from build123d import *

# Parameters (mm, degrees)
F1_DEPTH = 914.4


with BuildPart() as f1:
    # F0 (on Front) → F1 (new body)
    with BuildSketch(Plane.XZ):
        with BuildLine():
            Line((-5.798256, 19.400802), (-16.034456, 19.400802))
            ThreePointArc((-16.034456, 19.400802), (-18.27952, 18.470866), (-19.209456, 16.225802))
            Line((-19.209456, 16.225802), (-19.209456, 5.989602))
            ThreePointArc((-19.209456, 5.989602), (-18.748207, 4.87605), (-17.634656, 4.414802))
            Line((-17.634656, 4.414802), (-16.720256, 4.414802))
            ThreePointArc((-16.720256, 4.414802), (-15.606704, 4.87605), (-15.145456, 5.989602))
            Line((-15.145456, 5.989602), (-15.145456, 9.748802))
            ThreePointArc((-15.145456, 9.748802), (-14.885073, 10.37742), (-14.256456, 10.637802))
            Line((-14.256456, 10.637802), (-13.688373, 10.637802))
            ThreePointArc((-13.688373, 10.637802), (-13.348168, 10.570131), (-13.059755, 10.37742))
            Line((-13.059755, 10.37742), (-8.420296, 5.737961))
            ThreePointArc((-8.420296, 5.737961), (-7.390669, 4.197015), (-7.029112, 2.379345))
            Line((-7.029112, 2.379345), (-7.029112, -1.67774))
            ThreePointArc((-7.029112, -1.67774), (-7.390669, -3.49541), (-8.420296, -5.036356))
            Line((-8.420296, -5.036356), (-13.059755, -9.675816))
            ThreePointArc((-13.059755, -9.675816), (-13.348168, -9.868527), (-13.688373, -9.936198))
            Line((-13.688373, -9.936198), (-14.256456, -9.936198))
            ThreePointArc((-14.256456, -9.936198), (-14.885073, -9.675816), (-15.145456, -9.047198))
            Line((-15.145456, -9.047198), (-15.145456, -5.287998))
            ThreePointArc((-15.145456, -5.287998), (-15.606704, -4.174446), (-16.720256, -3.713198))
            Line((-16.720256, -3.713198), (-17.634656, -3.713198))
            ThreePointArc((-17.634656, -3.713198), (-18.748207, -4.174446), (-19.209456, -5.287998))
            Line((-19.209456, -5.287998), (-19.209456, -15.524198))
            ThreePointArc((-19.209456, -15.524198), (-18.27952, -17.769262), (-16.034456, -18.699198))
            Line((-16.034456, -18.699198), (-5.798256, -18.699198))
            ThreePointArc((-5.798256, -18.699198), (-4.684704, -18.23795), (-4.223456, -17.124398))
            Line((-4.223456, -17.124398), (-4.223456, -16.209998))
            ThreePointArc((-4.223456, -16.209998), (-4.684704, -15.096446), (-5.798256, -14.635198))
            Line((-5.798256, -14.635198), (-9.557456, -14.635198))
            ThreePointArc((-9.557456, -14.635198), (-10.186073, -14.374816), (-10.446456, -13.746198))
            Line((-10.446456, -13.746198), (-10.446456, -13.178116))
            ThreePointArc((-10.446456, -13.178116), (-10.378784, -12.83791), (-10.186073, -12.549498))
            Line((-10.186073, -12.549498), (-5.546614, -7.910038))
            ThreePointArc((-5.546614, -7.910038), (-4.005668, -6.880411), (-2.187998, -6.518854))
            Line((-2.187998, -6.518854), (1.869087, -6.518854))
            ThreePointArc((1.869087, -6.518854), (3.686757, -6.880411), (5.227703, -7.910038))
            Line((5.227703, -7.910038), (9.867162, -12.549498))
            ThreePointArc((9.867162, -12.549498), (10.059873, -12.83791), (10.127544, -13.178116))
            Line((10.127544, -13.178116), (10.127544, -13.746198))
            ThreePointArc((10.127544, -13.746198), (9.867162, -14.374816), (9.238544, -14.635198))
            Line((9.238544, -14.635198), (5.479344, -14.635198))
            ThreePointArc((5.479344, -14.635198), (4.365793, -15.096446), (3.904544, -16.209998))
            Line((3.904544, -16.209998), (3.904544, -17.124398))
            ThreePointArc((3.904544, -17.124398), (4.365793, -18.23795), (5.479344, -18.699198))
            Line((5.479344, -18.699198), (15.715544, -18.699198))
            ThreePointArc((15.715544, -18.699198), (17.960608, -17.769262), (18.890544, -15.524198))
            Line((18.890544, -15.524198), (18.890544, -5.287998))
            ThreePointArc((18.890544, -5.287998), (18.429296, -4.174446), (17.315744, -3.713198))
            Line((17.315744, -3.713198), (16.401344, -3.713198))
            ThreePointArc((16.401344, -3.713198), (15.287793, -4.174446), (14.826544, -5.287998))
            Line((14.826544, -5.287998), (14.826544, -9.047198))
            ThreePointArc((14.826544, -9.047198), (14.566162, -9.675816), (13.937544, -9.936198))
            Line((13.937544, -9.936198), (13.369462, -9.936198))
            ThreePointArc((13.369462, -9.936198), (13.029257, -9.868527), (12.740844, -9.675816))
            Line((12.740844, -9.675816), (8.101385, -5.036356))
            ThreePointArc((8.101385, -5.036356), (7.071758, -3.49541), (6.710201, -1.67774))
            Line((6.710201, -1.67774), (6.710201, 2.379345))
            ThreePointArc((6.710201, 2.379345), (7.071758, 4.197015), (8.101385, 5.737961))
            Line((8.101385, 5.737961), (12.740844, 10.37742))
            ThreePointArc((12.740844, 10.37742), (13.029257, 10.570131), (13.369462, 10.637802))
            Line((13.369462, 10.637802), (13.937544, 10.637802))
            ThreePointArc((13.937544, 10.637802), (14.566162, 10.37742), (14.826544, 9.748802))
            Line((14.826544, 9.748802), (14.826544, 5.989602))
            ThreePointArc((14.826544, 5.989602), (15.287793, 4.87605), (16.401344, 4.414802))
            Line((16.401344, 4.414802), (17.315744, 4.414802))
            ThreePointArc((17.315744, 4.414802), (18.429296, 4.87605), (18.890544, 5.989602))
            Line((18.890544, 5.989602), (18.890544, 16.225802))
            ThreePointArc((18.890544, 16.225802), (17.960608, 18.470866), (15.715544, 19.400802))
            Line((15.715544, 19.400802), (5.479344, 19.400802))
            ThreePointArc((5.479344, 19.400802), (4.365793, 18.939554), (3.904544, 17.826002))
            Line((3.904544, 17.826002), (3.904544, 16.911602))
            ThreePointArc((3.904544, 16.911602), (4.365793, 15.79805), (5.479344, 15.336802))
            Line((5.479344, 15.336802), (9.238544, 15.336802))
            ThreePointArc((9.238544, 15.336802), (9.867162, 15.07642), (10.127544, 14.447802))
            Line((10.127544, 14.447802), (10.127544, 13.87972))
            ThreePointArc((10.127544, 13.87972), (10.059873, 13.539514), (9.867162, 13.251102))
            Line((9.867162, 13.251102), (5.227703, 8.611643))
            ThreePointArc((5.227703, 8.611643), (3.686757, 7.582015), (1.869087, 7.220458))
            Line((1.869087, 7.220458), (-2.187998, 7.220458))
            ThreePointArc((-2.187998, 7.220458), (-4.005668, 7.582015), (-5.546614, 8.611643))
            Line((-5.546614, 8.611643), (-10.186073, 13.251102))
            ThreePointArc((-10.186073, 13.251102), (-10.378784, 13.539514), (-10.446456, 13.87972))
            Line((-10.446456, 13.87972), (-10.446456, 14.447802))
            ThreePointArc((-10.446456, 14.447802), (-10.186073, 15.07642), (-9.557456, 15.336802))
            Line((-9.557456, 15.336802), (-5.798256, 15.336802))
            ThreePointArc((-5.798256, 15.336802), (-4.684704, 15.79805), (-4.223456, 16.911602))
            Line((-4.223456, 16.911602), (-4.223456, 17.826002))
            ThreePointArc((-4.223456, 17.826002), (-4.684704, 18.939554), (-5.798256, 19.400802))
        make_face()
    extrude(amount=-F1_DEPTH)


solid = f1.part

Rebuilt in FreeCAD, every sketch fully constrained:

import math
import FreeCAD as App
import Part
import Sketcher

V = App.Vector
Q = App.Units.Quantity

doc = App.newDocument("Part")
body = doc.addObject("PartDesign::Body", "Body")

sketch1 = body.newObject("Sketcher::SketchObject", "Sketch")
sketch1.AttachmentSupport = (doc.getObject("XZ_Plane"), [""])
sketch1.MapMode = "FlatFace"
sketch1.addGeometry([
    Part.LineSegment(V(-5.798256, 19.400802, 0), V(-16.034456, 19.400802, 0)),
    Part.ArcOfCircle(Part.Circle(V(-16.034456, 16.225802, 0), V(0, 0, 1), 3.175), math.radians(90.000002), math.radians(179.999998)),
    Part.LineSegment(V(-19.209456, 16.225802, 0), V(-19.209456, 5.989602, 0)),
    Part.ArcOfCircle(Part.Circle(V(-17.634655, 5.989603, 0), V(0, 0, 1), 1.574801), math.radians(-179.999968), math.radians(-90.000032)),
    Part.LineSegment(V(-17.634656, 4.414802, 0), V(-16.720256, 4.414802, 0)),
    Part.ArcOfCircle(Part.Circle(V(-16.720255, 5.989601, 0), V(0, 0, 1), 1.574799), math.radians(-90.00003), math.radians(0.00003)),
    Part.LineSegment(V(-15.145456, 5.989602, 0), V(-15.145456, 9.748802, 0)),
    Part.ArcOfCircle(Part.Circle(V(-14.256455, 9.748801, 0), V(0, 0, 1), 0.889001), math.radians(90.000094), math.radians(179.999906)),
    Part.LineSegment(V(-14.256456, 10.637802, 0), V(-13.688373, 10.637802, 0)),
    Part.ArcOfCircle(Part.Circle(V(-13.688374, 9.7488, 0), V(0, 0, 1), 0.889002), math.radians(45.000066), math.radians(89.999949)),
    Part.LineSegment(V(-13.059755, 10.37742, 0), V(-8.420296, 5.737961, 0)),
    Part.ArcOfCircle(Part.Circle(V(-11.778913, 2.379345, 0), V(0, 0, 1), 4.749801), math.radians(-0.000001), math.radians(44.999992)),
    Part.LineSegment(V(-7.029112, 2.379345, 0), V(-7.029112, -1.67774, 0)),
    Part.ArcOfCircle(Part.Circle(V(-11.778913, -1.67774, 0), V(0, 0, 1), 4.749801), math.radians(-44.999992), math.radians(0.000001)),
    Part.LineSegment(V(-8.420296, -5.036356, 0), V(-13.059755, -9.675816, 0)),
    Part.ArcOfCircle(Part.Circle(V(-13.688374, -9.047196, 0), V(0, 0, 1), 0.889002), math.radians(-89.999949), math.radians(-45.000066)),
    Part.LineSegment(V(-13.688373, -9.936198, 0), V(-14.256456, -9.936198, 0)),
    Part.ArcOfCircle(Part.Circle(V(-14.256455, -9.047197, 0), V(0, 0, 1), 0.889001), math.radians(-179.999906), math.radians(-90.000094)),
    Part.LineSegment(V(-15.145456, -9.047198, 0), V(-15.145456, -5.287998, 0)),
    Part.ArcOfCircle(Part.Circle(V(-16.720255, -5.287997, 0), V(0, 0, 1), 1.574799), math.radians(-0.00003), math.radians(90.00003)),
    Part.LineSegment(V(-16.720256, -3.713198, 0), V(-17.634656, -3.713198, 0)),
    Part.ArcOfCircle(Part.Circle(V(-17.634655, -5.287999, 0), V(0, 0, 1), 1.574801), math.radians(90.000032), math.radians(179.999968)),
    Part.LineSegment(V(-19.209456, -5.287998, 0), V(-19.209456, -15.524198, 0)),
    Part.ArcOfCircle(Part.Circle(V(-16.034456, -15.524198, 0), V(0, 0, 1), 3.175), math.radians(-179.999998), math.radians(-90.000002)),
    Part.LineSegment(V(-16.034456, -18.699198, 0), V(-5.798256, -18.699198, 0)),
    Part.ArcOfCircle(Part.Circle(V(-5.798255, -17.124399, 0), V(0, 0, 1), 1.574799), math.radians(-90.00003), math.radians(0.00003)),
    Part.LineSegment(V(-4.223456, -17.124398, 0), V(-4.223456, -16.209998, 0)),
    Part.ArcOfCircle(Part.Circle(V(-5.798255, -16.209997, 0), V(0, 0, 1), 1.574799), math.radians(-0.00003), math.radians(90.00003)),
    Part.LineSegment(V(-5.798256, -14.635198, 0), V(-9.557456, -14.635198, 0)),
    Part.ArcOfCircle(Part.Circle(V(-9.557455, -13.746197, 0), V(0, 0, 1), 0.889001), math.radians(-179.999906), math.radians(-90.000094)),
    Part.LineSegment(V(-10.446456, -13.746198, 0), V(-10.446456, -13.178116, 0)),
    Part.ArcOfCircle(Part.Circle(V(-9.557452, -13.178119, 0), V(0, 0, 1), 0.889004), math.radians(135.000027), math.radians(179.999833)),
    Part.LineSegment(V(-10.186073, -12.549498, 0), V(-5.546614, -7.910038, 0)),
    Part.ArcOfCircle(Part.Circle(V(-2.187998, -11.268655, 0), V(0, 0, 1), 4.749801), math.radians(89.999999), math.radians(134.999992)),
    Part.LineSegment(V(-2.187998, -6.518854, 0), V(1.869087, -6.518854, 0)),
    Part.ArcOfCircle(Part.Circle(V(1.869087, -11.268655, 0), V(0, 0, 1), 4.749801), math.radians(45.000008), math.radians(90.000001)),
    Part.LineSegment(V(5.227703, -7.910038, 0), V(9.867162, -12.549498, 0)),
    Part.ArcOfCircle(Part.Circle(V(9.238546, -13.178115, 0), V(0, 0, 1), 0.888998), math.radians(-0.000073), math.radians(45.000058)),
    Part.LineSegment(V(10.127544, -13.178116, 0), V(10.127544, -13.746198, 0)),
    Part.ArcOfCircle(Part.Circle(V(9.238544, -13.746198, 0), V(0, 0, 1), 0.889), math.radians(-90.000016), math.radians(0.000016)),
    Part.LineSegment(V(9.238544, -14.635198, 0), V(5.479344, -14.635198, 0)),
    Part.ArcOfCircle(Part.Circle(V(5.479345, -16.209999, 0), V(0, 0, 1), 1.574801), math.radians(90.000032), math.radians(179.999968)),
    Part.LineSegment(V(3.904544, -16.209998, 0), V(3.904544, -17.124398, 0)),
    Part.ArcOfCircle(Part.Circle(V(5.479345, -17.124397, 0), V(0, 0, 1), 1.574801), math.radians(-179.999968), math.radians(-90.000032)),
    Part.LineSegment(V(5.479344, -18.699198, 0), V(15.715544, -18.699198, 0)),
    Part.ArcOfCircle(Part.Circle(V(15.715544, -15.524198, 0), V(0, 0, 1), 3.175), math.radians(-89.999998), math.radians(-0.000002)),
    Part.LineSegment(V(18.890544, -15.524198, 0), V(18.890544, -5.287998, 0)),
    Part.ArcOfCircle(Part.Circle(V(17.315745, -5.287997, 0), V(0, 0, 1), 1.574799), math.radians(-0.00003), math.radians(90.00003)),
    Part.LineSegment(V(17.315744, -3.713198, 0), V(16.401344, -3.713198, 0)),
    Part.ArcOfCircle(Part.Circle(V(16.401345, -5.287999, 0), V(0, 0, 1), 1.574801), math.radians(90.000032), math.radians(179.999968)),
    Part.LineSegment(V(14.826544, -5.287998, 0), V(14.826544, -9.047198, 0)),
    Part.ArcOfCircle(Part.Circle(V(13.937544, -9.047198, 0), V(0, 0, 1), 0.889), math.radians(-90.000016), math.radians(0.000016)),
    Part.LineSegment(V(13.937544, -9.936198, 0), V(13.369462, -9.936198, 0)),
    Part.ArcOfCircle(Part.Circle(V(13.369463, -9.047196, 0), V(0, 0, 1), 0.889002), math.radians(-134.999934), math.radians(-90.000051)),
    Part.LineSegment(V(12.740844, -9.675816, 0), V(8.101385, -5.036356, 0)),
    Part.ArcOfCircle(Part.Circle(V(11.460002, -1.67774, 0), V(0, 0, 1), 4.749801), math.radians(179.999999), math.radians(224.999992)),
    Part.LineSegment(V(6.710201, -1.67774, 0), V(6.710201, 2.379345, 0)),
    Part.ArcOfCircle(Part.Circle(V(11.460002, 2.379345, 0), V(0, 0, 1), 4.749801), math.radians(135.000008), math.radians(180.000001)),
    Part.LineSegment(V(8.101385, 5.737961, 0), V(12.740844, 10.37742, 0)),
    Part.ArcOfCircle(Part.Circle(V(13.369463, 9.7488, 0), V(0, 0, 1), 0.889002), math.radians(90.000051), math.radians(134.999934)),
    Part.LineSegment(V(13.369462, 10.637802, 0), V(13.937544, 10.637802, 0)),
    Part.ArcOfCircle(Part.Circle(V(13.937544, 9.748802, 0), V(0, 0, 1), 0.889), math.radians(-0.000016), math.radians(90.000016)),
    Part.LineSegment(V(14.826544, 9.748802, 0), V(14.826544, 5.989602, 0)),
    Part.ArcOfCircle(Part.Circle(V(16.401345, 5.989603, 0), V(0, 0, 1), 1.574801), math.radians(-179.999968), math.radians(-90.000032)),
    Part.LineSegment(V(16.401344, 4.414802, 0), V(17.315744, 4.414802, 0)),
    Part.ArcOfCircle(Part.Circle(V(17.315745, 5.989601, 0), V(0, 0, 1), 1.574799), math.radians(-90.00003), math.radians(0.00003)),
    Part.LineSegment(V(18.890544, 5.989602, 0), V(18.890544, 16.225802, 0)),
    Part.ArcOfCircle(Part.Circle(V(15.715544, 16.225802, 0), V(0, 0, 1), 3.175), math.radians(0.000002), math.radians(89.999998)),
    Part.LineSegment(V(15.715544, 19.400802, 0), V(5.479344, 19.400802, 0)),
    Part.ArcOfCircle(Part.Circle(V(5.479345, 17.826001, 0), V(0, 0, 1), 1.574801), math.radians(90.000032), math.radians(179.999968)),
    Part.LineSegment(V(3.904544, 17.826002, 0), V(3.904544, 16.911602, 0)),
    Part.ArcOfCircle(Part.Circle(V(5.479345, 16.911603, 0), V(0, 0, 1), 1.574801), math.radians(-179.999968), math.radians(-90.000032)),
    Part.LineSegment(V(5.479344, 15.336802, 0), V(9.238544, 15.336802, 0)),
    Part.ArcOfCircle(Part.Circle(V(9.238544, 14.447802, 0), V(0, 0, 1), 0.889), math.radians(-0.000016), math.radians(90.000016)),
    Part.LineSegment(V(10.127544, 14.447802, 0), V(10.127544, 13.87972, 0)),
    Part.ArcOfCircle(Part.Circle(V(9.238546, 13.879719, 0), V(0, 0, 1), 0.888998), math.radians(-45.000058), math.radians(0.000073)),
    Part.LineSegment(V(9.867162, 13.251102, 0), V(5.227703, 8.611643, 0)),
    Part.ArcOfCircle(Part.Circle(V(1.869088, 11.970254, 0), V(0, 0, 1), 4.749796), math.radians(-90.000012), math.radians(-44.999968)),
    Part.LineSegment(V(1.869087, 7.220458, 0), V(-2.187998, 7.220458, 0)),
    Part.ArcOfCircle(Part.Circle(V(-2.187999, 11.970254, 0), V(0, 0, 1), 4.749796), math.radians(-135.000032), math.radians(-89.999988)),
    Part.LineSegment(V(-5.546614, 8.611643, 0), V(-10.186073, 13.251102, 0)),
    Part.ArcOfCircle(Part.Circle(V(-9.557452, 13.879723, 0), V(0, 0, 1), 0.889004), math.radians(-179.999833), math.radians(-135.000027)),
    Part.LineSegment(V(-10.446456, 13.87972, 0), V(-10.446456, 14.447802, 0)),
    Part.ArcOfCircle(Part.Circle(V(-9.557455, 14.447801, 0), V(0, 0, 1), 0.889001), math.radians(90.000094), math.radians(179.999906)),
    Part.LineSegment(V(-9.557456, 15.336802, 0), V(-5.798256, 15.336802, 0)),
    Part.ArcOfCircle(Part.Circle(V(-5.798255, 16.911601, 0), V(0, 0, 1), 1.574799), math.radians(-90.00003), math.radians(0.00003)),
    Part.LineSegment(V(-4.223456, 16.911602, 0), V(-4.223456, 17.826002, 0)),
    Part.ArcOfCircle(Part.Circle(V(-5.798255, 17.826003, 0), V(0, 0, 1), 1.574799), math.radians(-0.00003), math.radians(90.00003)),
], False)
sketch1.addConstraint([
    Sketcher.Constraint("Tangent", 0, 2, 1, 1),
    Sketcher.Constraint("Tangent", 1, 2, 2, 1),
    Sketcher.Constraint("Tangent", 2, 2, 3, 1),
    Sketcher.Constraint("Tangent", 3, 2, 4, 1),
    Sketcher.Constraint("Tangent", 4, 2, 5, 1),
    Sketcher.Constraint("Tangent", 5, 2, 6, 1),
    Sketcher.Constraint("Tangent", 6, 2, 7, 2),
    Sketcher.Constraint("Tangent", 7, 1, 8, 1),
    Sketcher.Constraint("Tangent", 8, 2, 9, 2),
    Sketcher.Constraint("Tangent", 9, 1, 10, 1),
    Sketcher.Constraint("Tangent", 10, 2, 11, 2),
    Sketcher.Constraint("Tangent", 11, 1, 12, 1),
    Sketcher.Constraint("Tangent", 12, 2, 13, 2),
    Sketcher.Constraint("Tangent", 13, 1, 14, 1),
    Sketcher.Constraint("Tangent", 14, 2, 15, 2),
    Sketcher.Constraint("Tangent", 15, 1, 16, 1),
    Sketcher.Constraint("Tangent", 16, 2, 17, 2),
    Sketcher.Constraint("Tangent", 17, 1, 18, 1),
    Sketcher.Constraint("Tangent", 18, 2, 19, 1),
    Sketcher.Constraint("Tangent", 19, 2, 20, 1),
    Sketcher.Constraint("Tangent", 20, 2, 21, 1),
    Sketcher.Constraint("Tangent", 21, 2, 22, 1),
    Sketcher.Constraint("Tangent", 22, 2, 23, 1),
    Sketcher.Constraint("Tangent", 23, 2, 24, 1),
    Sketcher.Constraint("Tangent", 24, 2, 25, 1),
    Sketcher.Constraint("Tangent", 25, 2, 26, 1),
    Sketcher.Constraint("Tangent", 26, 2, 27, 1),
    Sketcher.Constraint("Tangent", 27, 2, 28, 1),
    Sketcher.Constraint("Tangent", 28, 2, 29, 2),
    Sketcher.Constraint("Tangent", 29, 1, 30, 1),
    Sketcher.Constraint("Coincident", 30, 2, 31, 2),
    Sketcher.Constraint("Tangent", 31, 1, 32, 1),
    Sketcher.Constraint("Tangent", 32, 2, 33, 2),
    Sketcher.Constraint("Tangent", 33, 1, 34, 1),
    Sketcher.Constraint("Tangent", 34, 2, 35, 2),
    Sketcher.Constraint("Tangent", 35, 1, 36, 1),
    Sketcher.Constraint("Tangent", 36, 2, 37, 2),
    Sketcher.Constraint("Tangent", 37, 1, 38, 1),
    Sketcher.Constraint("Tangent", 38, 2, 39, 2),
    Sketcher.Constraint("Tangent", 39, 1, 40, 1),
    Sketcher.Constraint("Tangent", 40, 2, 41, 1),
    Sketcher.Constraint("Tangent", 41, 2, 42, 1),
    Sketcher.Constraint("Tangent", 42, 2, 43, 1),
    Sketcher.Constraint("Tangent", 43, 2, 44, 1),
    Sketcher.Constraint("Tangent", 44, 2, 45, 1),
    Sketcher.Constraint("Tangent", 45, 2, 46, 1),
    Sketcher.Constraint("Tangent", 46, 2, 47, 1),
    Sketcher.Constraint("Tangent", 47, 2, 48, 1),
    Sketcher.Constraint("Tangent", 48, 2, 49, 1),
    Sketcher.Constraint("Tangent", 49, 2, 50, 1),
    Sketcher.Constraint("Tangent", 50, 2, 51, 2),
    Sketcher.Constraint("Tangent", 51, 1, 52, 1),
    Sketcher.Constraint("Tangent", 52, 2, 53, 2),
    Sketcher.Constraint("Tangent", 53, 1, 54, 1),
    Sketcher.Constraint("Tangent", 54, 2, 55, 2),
    Sketcher.Constraint("Tangent", 55, 1, 56, 1),
    Sketcher.Constraint("Tangent", 56, 2, 57, 2),
    Sketcher.Constraint("Tangent", 57, 1, 58, 1),
    Sketcher.Constraint("Tangent", 58, 2, 59, 2),
    Sketcher.Constraint("Tangent", 59, 1, 60, 1),
    Sketcher.Constraint("Tangent", 60, 2, 61, 2),
    Sketcher.Constraint("Tangent", 61, 1, 62, 1),
    Sketcher.Constraint("Tangent", 62, 2, 63, 1),
    Sketcher.Constraint("Tangent", 63, 2, 64, 1),
    Sketcher.Constraint("Tangent", 64, 2, 65, 1),
    Sketcher.Constraint("Tangent", 65, 2, 66, 1),
    Sketcher.Constraint("Tangent", 66, 2, 67, 1),
    Sketcher.Constraint("Tangent", 67, 2, 68, 1),
    Sketcher.Constraint("Tangent", 68, 2, 69, 1),
    Sketcher.Constraint("Tangent", 69, 2, 70, 1),
    Sketcher.Constraint("Tangent", 70, 2, 71, 1),
    Sketcher.Constraint("Tangent", 71, 2, 72, 1),
    Sketcher.Constraint("Tangent", 72, 2, 73, 2),
    Sketcher.Constraint("Tangent", 73, 1, 74, 1),
    Sketcher.Constraint("Tangent", 74, 2, 75, 2),
    Sketcher.Constraint("Tangent", 75, 1, 76, 1),
    Sketcher.Constraint("Tangent", 76, 2, 77, 2),
    Sketcher.Constraint("Tangent", 77, 1, 78, 1),
    Sketcher.Constraint("Tangent", 78, 2, 79, 2),
    Sketcher.Constraint("Tangent", 79, 1, 80, 1),
    Sketcher.Constraint("Tangent", 80, 2, 81, 2),
    Sketcher.Constraint("Coincident", 81, 1, 82, 1),
    Sketcher.Constraint("Tangent", 82, 2, 83, 2),
    Sketcher.Constraint("Tangent", 83, 1, 84, 1),
    Sketcher.Constraint("Tangent", 84, 2, 85, 1),
    Sketcher.Constraint("Tangent", 85, 2, 86, 1),
    Sketcher.Constraint("Tangent", 86, 2, 87, 1),
    Sketcher.Constraint("Tangent", 87, 2, 0, 1),
    Sketcher.Constraint("Horizontal", 0),
    Sketcher.Constraint("Vertical", 2),
    Sketcher.Constraint("Horizontal", 4),
    Sketcher.Constraint("Vertical", 6),
    Sketcher.Constraint("Horizontal", 8),
    Sketcher.Constraint("Vertical", 12),
    Sketcher.Constraint("Horizontal", 16),
    Sketcher.Constraint("Vertical", 18),
    Sketcher.Constraint("Horizontal", 20),
    Sketcher.Constraint("Vertical", 22),
    Sketcher.Constraint("Horizontal", 24),
    Sketcher.Constraint("Vertical", 26),
    Sketcher.Constraint("Horizontal", 28),
    Sketcher.Constraint("Vertical", 30),
    Sketcher.Constraint("Horizontal", 34),
    Sketcher.Constraint("Vertical", 38),
    Sketcher.Constraint("Horizontal", 40),
    Sketcher.Constraint("Vertical", 42),
    Sketcher.Constraint("Horizontal", 44),
    Sketcher.Constraint("Vertical", 46),
    Sketcher.Constraint("Horizontal", 48),
    Sketcher.Constraint("Vertical", 50),
    Sketcher.Constraint("Horizontal", 52),
    Sketcher.Constraint("Vertical", 56),
    Sketcher.Constraint("Horizontal", 60),
    Sketcher.Constraint("Vertical", 62),
    Sketcher.Constraint("Horizontal", 64),
    Sketcher.Constraint("Vertical", 66),
    Sketcher.Constraint("Horizontal", 68),
    Sketcher.Constraint("Vertical", 70),
    Sketcher.Constraint("Horizontal", 72),
    Sketcher.Constraint("Vertical", 74),
    Sketcher.Constraint("Horizontal", 78),
    Sketcher.Constraint("Vertical", 82),
    Sketcher.Constraint("Horizontal", 84),
    Sketcher.Constraint("Vertical", 86),
    Sketcher.Constraint("Equal", 3, 5),
    Sketcher.Constraint("Equal", 7, 9),
    Sketcher.Constraint("Equal", 11, 13),
    Sketcher.Constraint("Equal", 9, 15),
    Sketcher.Constraint("Equal", 15, 17),
    Sketcher.Constraint("Equal", 5, 19),
    Sketcher.Constraint("Equal", 19, 21),
    Sketcher.Constraint("Equal", 1, 23),
    Sketcher.Constraint("Equal", 21, 25),
    Sketcher.Constraint("Equal", 25, 27),
    Sketcher.Constraint("Equal", 17, 29),
    Sketcher.Constraint("Equal", 15, 31),
    Sketcher.Constraint("Equal", 13, 33),
    Sketcher.Constraint("Equal", 33, 35),
    Sketcher.Constraint("Equal", 29, 39),
    Sketcher.Constraint("Equal", 27, 41),
    Sketcher.Constraint("Equal", 41, 43),
    Sketcher.Constraint("Equal", 23, 45),
    Sketcher.Constraint("Equal", 43, 47),
    Sketcher.Constraint("Equal", 47, 49),
    Sketcher.Constraint("Equal", 39, 51),
    Sketcher.Constraint("Equal", 31, 53),
    Sketcher.Constraint("Equal", 35, 55),
    Sketcher.Constraint("Equal", 55, 57),
    Sketcher.Constraint("Equal", 53, 59),
    Sketcher.Constraint("Equal", 51, 61),
    Sketcher.Constraint("Equal", 49, 63),
    Sketcher.Constraint("Equal", 63, 65),
    Sketcher.Constraint("Equal", 45, 67),
    Sketcher.Constraint("Equal", 65, 69),
    Sketcher.Constraint("Equal", 69, 71),
    Sketcher.Constraint("Equal", 61, 73),
    Sketcher.Constraint("Equal", 37, 75),
    Sketcher.Constraint("Equal", 77, 79),
    Sketcher.Constraint("Equal", 59, 81),
    Sketcher.Constraint("Equal", 73, 83),
    Sketcher.Constraint("Equal", 71, 85),
    Sketcher.Constraint("Equal", 85, 87),
    Sketcher.Constraint("Perpendicular", 10, 14),
    Sketcher.Constraint("Parallel", 14, 32),
    Sketcher.Constraint("Perpendicular", 32, 36),
    Sketcher.Constraint("Parallel", 36, 54),
    Sketcher.Constraint("Perpendicular", 54, 58),
    Sketcher.Constraint("Parallel", 58, 76),
    Sketcher.Constraint("Perpendicular", 76, 80),
    Sketcher.Constraint("Horizontal", 29, 3, 39, 3),
    Sketcher.Constraint("Horizontal", 25, 3, 43, 3),
    Sketcher.Constraint("Horizontal", 21, 3, 47, 3),
    Sketcher.Constraint("Horizontal", 17, 3, 51, 3),
    Sketcher.Constraint("Horizontal", 13, 3, 55, 3),
    Sketcher.Constraint("Horizontal", 11, 3, 57, 3),
    Sketcher.Constraint("Horizontal", 9, 3, 59, 3),
    Sketcher.Constraint("Horizontal", 5, 3, 63, 3),
    Sketcher.Constraint("Horizontal", 1, 3, 67, 3),
    Sketcher.Constraint("Horizontal", 73, 3, 83, 3),
    Sketcher.Constraint("Horizontal", 37, 3, 30, 2),
    Sketcher.Constraint("Horizontal", 32, 2, 35, 1),
    Sketcher.Constraint("Horizontal", 31, 1, 36, 2),
    Sketcher.Constraint("Horizontal", 75, 1, 80, 2),
    Sketcher.Constraint("Horizontal", 74, 2, 81, 1),
    Sketcher.Constraint("Vertical", 9, 3, 15, 3),
    Sketcher.Constraint("Vertical", 7, 3, 17, 3),
    Sketcher.Constraint("Vertical", 3, 3, 21, 3),
    Sketcher.Constraint("Vertical", 51, 3, 61, 3),
    Sketcher.Constraint("Vertical", 47, 3, 65, 3),
    Sketcher.Constraint("Vertical", 43, 3, 69, 3),
    Sketcher.Constraint("Vertical", 39, 3, 73, 3),
    Sketcher.Constraint("Vertical", 35, 3, 77, 3),
    Sketcher.Constraint("Vertical", 33, 3, 79, 3),
    Sketcher.Constraint("Vertical", 27, 3, 85, 3),
    Sketcher.Constraint("Vertical", 35, 1, 76, 2),
    Sketcher.Constraint("Equal", 28, 40),
    Sketcher.Constraint("Equal", 24, 44),
    Sketcher.Constraint("Equal", 20, 48),
    Sketcher.Constraint("Equal", 16, 52),
    Sketcher.Constraint("Equal", 68, 2),
    Sketcher.Constraint("Equal", 84, 6),
    Sketcher.Constraint("Equal", 78, 12),
    Sketcher.Constraint("Equal", 6, 18),
    Sketcher.Constraint("Equal", 2, 22),
    Sketcher.Constraint("Equal", 64, 26),
    Sketcher.Constraint("Equal", 60, 30),
    Sketcher.Constraint("Equal", 42, 70),
    Sketcher.Constraint("Equal", 38, 74),
    Sketcher.Constraint("Equal", 14, 32),
    Sketcher.Constraint("Radius", 1, Q("0.125 in")),
    Sketcher.Constraint("Radius", 3, Q("0.062 in")),
    Sketcher.Constraint("Radius", 7, Q("0.0350001 in")),
    Sketcher.Constraint("Radius", 11, Q("0.187 in")),
    Sketcher.Constraint("Radius", 37, Q("0.0349999 in")),
    Sketcher.Constraint("DistanceX", 0, 2, 0, 1, Q("0.403 in")),
    Sketcher.Constraint("DistanceX", 4, 1, 4, 2, Q("0.036 in")),
    Sketcher.Constraint("DistanceX", 28, 2, 28, 1, Q("0.148 in")),
    Sketcher.Constraint("DistanceY", 74, 2, 74, 1, 0.568082),
    Sketcher.Constraint("DistanceY", -1, 1, 1, 3, 16.225802),
    Sketcher.Constraint("DistanceY", 21, 3, -1, 1, 5.287999),
    Sketcher.Constraint("DistanceX", 33, 3, -1, 1, 2.187998),
    Sketcher.Constraint("DistanceX", -1, 1, 55, 3, 11.460002),
])
pad1 = body.newObject("PartDesign::Pad", "Pad")
pad1.Profile = sketch1
pad1.Length = Q("36 in")
pad1.Reversed = True

doc.recompute()
